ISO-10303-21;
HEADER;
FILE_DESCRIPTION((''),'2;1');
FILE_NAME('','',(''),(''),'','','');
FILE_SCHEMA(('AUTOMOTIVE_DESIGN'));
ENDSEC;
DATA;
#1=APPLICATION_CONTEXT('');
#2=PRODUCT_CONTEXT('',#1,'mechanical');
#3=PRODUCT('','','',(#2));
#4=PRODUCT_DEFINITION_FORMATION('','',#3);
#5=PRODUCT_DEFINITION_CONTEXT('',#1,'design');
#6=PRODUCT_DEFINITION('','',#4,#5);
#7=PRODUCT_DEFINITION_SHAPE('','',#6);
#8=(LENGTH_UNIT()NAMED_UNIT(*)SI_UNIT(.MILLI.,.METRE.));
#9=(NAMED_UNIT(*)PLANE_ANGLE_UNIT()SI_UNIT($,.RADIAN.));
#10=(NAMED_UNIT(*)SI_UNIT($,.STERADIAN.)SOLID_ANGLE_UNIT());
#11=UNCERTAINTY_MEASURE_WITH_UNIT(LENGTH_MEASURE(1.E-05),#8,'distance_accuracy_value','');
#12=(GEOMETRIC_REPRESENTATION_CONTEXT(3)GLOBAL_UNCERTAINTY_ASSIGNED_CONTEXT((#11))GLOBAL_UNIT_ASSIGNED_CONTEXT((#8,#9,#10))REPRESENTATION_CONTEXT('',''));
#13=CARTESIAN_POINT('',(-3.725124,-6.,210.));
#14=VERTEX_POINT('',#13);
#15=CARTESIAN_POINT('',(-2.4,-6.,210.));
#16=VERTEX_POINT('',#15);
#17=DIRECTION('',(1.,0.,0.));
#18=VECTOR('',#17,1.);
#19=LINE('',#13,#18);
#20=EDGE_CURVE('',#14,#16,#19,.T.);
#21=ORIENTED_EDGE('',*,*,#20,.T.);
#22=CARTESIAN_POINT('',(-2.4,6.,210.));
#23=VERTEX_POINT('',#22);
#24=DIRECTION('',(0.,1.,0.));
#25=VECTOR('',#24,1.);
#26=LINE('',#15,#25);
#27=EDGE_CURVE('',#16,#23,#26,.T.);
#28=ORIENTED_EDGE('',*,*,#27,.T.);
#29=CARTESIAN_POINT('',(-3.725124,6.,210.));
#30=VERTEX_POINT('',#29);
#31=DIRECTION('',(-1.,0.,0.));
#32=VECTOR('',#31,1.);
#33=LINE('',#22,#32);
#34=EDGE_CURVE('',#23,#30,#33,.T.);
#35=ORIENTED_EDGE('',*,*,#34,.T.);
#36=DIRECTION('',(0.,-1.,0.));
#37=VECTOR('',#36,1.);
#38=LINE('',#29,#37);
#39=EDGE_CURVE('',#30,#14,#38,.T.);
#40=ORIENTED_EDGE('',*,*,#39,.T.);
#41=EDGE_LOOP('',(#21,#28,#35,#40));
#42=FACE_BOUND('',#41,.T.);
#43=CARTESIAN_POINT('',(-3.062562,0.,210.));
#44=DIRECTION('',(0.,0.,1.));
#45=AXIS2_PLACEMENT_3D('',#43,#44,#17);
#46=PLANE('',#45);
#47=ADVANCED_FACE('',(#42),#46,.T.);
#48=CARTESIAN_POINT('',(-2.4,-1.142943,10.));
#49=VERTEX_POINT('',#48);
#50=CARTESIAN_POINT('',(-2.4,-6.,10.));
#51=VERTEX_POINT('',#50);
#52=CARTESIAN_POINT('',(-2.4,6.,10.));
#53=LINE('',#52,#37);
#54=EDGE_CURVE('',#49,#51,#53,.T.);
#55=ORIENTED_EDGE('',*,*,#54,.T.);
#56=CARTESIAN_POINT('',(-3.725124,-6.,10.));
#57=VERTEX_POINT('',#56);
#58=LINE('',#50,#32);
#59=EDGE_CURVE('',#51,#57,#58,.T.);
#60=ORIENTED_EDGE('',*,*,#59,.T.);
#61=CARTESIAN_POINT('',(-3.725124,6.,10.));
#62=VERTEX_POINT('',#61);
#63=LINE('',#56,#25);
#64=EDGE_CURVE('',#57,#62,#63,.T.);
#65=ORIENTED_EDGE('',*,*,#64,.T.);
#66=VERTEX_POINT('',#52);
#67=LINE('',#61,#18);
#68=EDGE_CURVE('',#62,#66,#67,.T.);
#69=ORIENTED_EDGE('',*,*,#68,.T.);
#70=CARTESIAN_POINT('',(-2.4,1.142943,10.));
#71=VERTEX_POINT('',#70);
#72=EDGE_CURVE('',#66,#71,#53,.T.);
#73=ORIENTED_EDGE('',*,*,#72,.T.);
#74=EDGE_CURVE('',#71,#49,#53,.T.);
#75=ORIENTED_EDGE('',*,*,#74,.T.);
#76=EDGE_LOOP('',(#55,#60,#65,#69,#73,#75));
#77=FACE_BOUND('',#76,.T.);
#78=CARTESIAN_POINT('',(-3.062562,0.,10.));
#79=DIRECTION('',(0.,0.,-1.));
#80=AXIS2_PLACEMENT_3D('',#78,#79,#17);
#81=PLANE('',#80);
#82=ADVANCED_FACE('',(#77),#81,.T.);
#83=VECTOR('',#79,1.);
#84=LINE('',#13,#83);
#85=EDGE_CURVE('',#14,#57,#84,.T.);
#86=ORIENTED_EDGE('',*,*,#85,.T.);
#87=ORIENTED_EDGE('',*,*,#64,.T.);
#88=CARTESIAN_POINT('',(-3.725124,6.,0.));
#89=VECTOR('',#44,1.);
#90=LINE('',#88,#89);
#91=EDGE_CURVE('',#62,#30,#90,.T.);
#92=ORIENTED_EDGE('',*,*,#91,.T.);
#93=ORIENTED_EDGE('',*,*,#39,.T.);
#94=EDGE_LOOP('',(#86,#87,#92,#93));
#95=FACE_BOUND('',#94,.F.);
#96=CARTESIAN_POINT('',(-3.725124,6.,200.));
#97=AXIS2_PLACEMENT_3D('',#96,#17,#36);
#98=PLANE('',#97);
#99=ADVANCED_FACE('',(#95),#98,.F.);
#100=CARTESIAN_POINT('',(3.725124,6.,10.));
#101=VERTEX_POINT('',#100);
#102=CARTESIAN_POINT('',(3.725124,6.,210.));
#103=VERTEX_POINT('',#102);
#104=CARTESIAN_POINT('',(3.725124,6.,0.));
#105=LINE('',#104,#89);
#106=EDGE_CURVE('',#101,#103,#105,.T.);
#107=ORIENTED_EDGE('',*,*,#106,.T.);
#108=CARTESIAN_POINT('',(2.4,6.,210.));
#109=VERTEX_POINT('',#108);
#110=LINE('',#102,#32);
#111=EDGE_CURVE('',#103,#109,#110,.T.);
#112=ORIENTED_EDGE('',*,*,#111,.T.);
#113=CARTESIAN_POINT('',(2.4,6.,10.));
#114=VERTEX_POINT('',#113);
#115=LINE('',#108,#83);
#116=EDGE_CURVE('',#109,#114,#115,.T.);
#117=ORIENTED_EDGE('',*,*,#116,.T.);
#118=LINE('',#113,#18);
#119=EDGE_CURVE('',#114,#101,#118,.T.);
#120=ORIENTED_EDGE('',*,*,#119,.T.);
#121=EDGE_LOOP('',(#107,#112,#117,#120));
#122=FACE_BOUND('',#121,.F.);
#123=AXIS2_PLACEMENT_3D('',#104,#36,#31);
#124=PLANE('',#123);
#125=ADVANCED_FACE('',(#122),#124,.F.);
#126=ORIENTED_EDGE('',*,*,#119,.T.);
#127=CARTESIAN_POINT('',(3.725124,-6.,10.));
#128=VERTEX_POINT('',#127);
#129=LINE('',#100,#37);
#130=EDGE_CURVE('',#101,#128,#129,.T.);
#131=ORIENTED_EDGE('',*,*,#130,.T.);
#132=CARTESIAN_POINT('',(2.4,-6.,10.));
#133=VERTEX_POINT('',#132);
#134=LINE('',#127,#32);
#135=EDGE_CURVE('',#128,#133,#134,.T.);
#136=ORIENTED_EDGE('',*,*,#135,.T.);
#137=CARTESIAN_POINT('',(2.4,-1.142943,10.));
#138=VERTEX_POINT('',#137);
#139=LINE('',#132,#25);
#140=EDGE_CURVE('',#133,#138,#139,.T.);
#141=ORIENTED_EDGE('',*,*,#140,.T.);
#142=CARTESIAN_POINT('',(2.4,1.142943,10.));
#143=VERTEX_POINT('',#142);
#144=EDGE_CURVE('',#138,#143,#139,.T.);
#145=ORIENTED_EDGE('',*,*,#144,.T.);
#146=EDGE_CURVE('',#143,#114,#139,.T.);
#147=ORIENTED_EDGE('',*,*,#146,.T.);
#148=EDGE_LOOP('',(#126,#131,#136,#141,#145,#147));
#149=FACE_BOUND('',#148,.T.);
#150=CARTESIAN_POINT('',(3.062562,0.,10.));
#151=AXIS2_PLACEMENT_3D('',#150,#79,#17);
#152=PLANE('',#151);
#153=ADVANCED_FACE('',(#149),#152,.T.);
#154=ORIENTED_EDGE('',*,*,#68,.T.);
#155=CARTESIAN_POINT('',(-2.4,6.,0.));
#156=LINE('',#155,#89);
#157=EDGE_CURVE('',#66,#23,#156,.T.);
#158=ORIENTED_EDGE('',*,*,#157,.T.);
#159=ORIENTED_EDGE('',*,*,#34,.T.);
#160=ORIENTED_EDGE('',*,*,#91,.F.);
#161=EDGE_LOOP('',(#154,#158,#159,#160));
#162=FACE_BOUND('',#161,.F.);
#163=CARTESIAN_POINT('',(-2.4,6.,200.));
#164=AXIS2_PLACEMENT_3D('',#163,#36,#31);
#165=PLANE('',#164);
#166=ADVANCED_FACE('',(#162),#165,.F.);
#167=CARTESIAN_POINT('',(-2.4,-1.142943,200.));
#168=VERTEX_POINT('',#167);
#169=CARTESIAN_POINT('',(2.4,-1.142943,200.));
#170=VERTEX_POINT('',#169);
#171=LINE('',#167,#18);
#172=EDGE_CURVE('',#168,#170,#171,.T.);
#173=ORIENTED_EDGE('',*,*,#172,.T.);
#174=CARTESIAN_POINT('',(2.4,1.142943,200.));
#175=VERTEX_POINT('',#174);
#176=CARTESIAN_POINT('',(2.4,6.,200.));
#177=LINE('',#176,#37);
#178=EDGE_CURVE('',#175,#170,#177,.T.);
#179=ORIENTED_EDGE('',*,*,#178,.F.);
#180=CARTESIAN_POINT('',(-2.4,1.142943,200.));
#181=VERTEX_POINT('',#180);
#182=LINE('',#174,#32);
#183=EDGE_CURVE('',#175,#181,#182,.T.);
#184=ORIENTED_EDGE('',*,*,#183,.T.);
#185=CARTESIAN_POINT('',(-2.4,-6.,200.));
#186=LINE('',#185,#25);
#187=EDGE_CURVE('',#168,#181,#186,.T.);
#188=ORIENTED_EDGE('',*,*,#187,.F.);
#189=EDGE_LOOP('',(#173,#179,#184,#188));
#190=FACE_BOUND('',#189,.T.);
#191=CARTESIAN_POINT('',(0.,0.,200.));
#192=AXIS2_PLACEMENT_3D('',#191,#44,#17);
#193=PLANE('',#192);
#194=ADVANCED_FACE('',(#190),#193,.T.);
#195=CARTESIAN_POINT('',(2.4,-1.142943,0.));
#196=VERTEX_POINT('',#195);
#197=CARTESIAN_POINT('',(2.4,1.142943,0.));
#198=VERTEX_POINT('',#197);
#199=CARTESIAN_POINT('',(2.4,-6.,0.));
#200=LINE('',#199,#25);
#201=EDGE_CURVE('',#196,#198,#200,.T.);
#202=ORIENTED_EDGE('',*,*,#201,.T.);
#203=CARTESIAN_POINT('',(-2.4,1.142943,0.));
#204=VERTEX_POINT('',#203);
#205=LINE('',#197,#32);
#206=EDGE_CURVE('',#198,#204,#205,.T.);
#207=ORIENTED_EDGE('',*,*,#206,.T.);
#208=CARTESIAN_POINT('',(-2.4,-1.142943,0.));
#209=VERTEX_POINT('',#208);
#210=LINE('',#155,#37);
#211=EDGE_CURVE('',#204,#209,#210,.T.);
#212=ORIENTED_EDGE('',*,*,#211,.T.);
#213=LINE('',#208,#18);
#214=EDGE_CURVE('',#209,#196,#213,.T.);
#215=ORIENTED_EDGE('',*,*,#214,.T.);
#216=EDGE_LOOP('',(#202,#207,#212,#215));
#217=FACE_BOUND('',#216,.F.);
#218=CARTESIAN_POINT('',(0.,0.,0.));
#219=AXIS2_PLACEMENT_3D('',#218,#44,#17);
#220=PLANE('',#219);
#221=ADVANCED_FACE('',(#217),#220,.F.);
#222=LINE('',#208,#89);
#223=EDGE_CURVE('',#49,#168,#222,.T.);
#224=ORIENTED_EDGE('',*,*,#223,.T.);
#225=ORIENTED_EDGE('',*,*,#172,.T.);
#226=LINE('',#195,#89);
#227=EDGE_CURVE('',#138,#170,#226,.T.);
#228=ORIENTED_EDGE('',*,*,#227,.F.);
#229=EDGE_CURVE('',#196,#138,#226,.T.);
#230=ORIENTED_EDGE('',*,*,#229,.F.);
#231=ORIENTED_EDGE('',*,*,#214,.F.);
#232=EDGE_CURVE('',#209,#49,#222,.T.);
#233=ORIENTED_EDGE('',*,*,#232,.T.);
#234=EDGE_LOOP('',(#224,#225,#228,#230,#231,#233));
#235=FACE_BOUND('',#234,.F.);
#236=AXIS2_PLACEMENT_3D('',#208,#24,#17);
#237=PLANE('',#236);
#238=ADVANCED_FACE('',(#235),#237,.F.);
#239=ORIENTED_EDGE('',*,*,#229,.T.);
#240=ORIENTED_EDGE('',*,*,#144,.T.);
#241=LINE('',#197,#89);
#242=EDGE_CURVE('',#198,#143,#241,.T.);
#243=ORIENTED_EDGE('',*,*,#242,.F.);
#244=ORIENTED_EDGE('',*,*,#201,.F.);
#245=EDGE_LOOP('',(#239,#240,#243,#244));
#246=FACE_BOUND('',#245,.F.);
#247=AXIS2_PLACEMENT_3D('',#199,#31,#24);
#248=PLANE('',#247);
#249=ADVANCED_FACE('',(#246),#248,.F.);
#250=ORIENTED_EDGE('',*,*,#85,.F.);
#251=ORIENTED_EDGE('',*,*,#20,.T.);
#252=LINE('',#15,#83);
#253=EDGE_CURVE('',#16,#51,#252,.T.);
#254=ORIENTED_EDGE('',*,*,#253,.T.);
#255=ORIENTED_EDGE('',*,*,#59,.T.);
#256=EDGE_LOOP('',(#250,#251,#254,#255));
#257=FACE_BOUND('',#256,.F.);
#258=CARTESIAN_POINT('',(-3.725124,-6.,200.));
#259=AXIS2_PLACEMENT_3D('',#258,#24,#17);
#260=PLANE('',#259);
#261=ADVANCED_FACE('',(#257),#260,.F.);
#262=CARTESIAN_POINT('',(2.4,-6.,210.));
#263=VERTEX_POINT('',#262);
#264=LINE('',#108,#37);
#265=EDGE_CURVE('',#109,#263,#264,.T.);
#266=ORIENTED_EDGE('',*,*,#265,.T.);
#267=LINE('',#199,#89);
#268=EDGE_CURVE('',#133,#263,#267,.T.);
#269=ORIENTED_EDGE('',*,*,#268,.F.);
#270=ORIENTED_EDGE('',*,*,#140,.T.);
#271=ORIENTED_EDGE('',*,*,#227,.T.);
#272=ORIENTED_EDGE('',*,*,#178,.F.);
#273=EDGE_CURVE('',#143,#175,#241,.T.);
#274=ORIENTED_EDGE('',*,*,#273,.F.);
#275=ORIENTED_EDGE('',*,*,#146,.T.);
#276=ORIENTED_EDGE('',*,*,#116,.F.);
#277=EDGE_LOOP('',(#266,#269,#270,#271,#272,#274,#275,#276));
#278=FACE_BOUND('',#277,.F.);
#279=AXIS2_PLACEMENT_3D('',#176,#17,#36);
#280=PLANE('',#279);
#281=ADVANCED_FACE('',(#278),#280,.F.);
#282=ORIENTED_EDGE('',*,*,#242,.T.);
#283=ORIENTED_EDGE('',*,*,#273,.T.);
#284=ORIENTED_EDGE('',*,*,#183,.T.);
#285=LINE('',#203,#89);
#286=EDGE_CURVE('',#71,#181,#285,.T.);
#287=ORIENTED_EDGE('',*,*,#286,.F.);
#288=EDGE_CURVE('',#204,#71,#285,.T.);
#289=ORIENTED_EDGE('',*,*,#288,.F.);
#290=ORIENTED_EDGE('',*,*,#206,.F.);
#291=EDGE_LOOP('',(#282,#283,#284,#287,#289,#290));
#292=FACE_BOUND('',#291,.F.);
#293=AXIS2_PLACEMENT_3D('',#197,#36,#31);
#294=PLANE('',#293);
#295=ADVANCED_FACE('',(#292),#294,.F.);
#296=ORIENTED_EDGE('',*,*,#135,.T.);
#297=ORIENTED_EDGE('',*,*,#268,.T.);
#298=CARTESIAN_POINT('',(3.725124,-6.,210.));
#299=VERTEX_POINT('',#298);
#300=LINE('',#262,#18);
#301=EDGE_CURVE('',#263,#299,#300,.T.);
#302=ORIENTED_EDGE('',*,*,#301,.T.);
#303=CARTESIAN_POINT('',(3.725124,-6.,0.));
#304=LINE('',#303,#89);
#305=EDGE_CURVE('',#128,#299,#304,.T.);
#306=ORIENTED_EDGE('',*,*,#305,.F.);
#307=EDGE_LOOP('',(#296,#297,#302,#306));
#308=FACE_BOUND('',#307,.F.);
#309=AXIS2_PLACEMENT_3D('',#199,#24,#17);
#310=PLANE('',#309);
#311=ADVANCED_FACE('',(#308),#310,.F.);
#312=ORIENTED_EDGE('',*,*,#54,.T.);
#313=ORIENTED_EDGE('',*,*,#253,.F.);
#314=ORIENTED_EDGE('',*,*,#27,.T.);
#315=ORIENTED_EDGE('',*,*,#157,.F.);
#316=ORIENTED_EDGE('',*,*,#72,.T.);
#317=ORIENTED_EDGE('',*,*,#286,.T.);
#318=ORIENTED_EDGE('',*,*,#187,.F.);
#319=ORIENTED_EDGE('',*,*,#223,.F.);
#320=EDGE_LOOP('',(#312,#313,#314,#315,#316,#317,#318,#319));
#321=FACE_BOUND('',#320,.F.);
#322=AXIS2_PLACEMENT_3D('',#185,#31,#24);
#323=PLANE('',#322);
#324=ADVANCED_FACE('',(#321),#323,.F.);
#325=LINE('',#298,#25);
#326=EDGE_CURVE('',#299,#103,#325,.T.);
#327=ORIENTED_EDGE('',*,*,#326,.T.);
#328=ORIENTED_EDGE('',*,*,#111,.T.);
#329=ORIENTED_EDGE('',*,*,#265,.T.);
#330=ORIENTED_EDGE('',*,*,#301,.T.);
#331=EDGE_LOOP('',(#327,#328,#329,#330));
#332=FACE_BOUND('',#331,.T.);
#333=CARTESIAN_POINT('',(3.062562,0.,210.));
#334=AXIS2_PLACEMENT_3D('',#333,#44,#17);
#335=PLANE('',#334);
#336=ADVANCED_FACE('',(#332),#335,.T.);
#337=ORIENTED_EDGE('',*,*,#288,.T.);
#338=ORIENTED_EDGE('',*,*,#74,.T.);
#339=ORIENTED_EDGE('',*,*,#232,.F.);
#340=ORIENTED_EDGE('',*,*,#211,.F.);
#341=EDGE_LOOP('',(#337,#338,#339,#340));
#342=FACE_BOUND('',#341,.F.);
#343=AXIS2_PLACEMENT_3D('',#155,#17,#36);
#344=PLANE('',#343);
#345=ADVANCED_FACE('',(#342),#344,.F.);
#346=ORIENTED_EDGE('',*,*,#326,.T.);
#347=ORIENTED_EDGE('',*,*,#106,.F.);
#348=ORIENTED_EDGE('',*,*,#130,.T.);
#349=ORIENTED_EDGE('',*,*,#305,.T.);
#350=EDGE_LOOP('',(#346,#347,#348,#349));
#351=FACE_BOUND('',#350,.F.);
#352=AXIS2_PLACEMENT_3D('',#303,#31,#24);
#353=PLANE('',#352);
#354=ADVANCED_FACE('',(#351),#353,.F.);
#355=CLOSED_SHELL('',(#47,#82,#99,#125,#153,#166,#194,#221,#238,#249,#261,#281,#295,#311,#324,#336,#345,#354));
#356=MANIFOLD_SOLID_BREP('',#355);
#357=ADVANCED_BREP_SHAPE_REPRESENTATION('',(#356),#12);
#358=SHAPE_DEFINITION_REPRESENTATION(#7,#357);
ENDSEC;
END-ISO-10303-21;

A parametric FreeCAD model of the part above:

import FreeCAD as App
import Part
import Sketcher

V = App.Vector
Q = App.Units.Quantity

doc = App.newDocument("Part")
body = doc.addObject("PartDesign::Body", "Body")

# Sketch on XY plane
sketch1 = body.newObject("Sketcher::SketchObject", "Sketch")
sketch1.AttachmentSupport = (doc.getObject("XY_Plane"), [""])
sketch1.MapMode = "FlatFace"
sketch1.addGeometry([
    Part.LineSegment(V(2.4, 1.142943, 0), V(-2.4, 1.142943, 0)),  # 0
    Part.LineSegment(V(-2.4, 1.142943, 0), V(-2.4, 6, 0)),  # 1
    Part.LineSegment(V(-2.4, 6, 0), V(-3.725124, 6, 0)),  # 2
    Part.LineSegment(V(-3.725124, 6, 0), V(-3.725124, -6, 0)),  # 3
    Part.LineSegment(V(-3.725124, -6, 0), V(-2.4, -6, 0)),  # 4
    Part.LineSegment(V(-2.4, -6, 0), V(-2.4, -1.142943, 0)),  # 5
    Part.LineSegment(V(-2.4, -1.142943, 0), V(2.4, -1.142943, 0)),  # 6
    Part.LineSegment(V(2.4, -1.142943, 0), V(2.4, -6, 0)),  # 7
    Part.LineSegment(V(2.4, -6, 0), V(3.725124, -6, 0)),  # 8
    Part.LineSegment(V(3.725124, -6, 0), V(3.725124, 6, 0)),  # 9
    Part.LineSegment(V(3.725124, 6, 0), V(2.4, 6, 0)),  # 10
    Part.LineSegment(V(2.4, 6, 0), V(2.4, 1.142943, 0)),  # 11
], False)
sketch1.addConstraint([
    Sketcher.Constraint("Coincident", 0, 2, 1, 1),
    Sketcher.Constraint("Coincident", 1, 2, 2, 1),
    Sketcher.Constraint("Coincident", 2, 2, 3, 1),
    Sketcher.Constraint("Coincident", 3, 2, 4, 1),
    Sketcher.Constraint("Coincident", 4, 2, 5, 1),
    Sketcher.Constraint("Coincident", 5, 2, 6, 1),
    Sketcher.Constraint("Coincident", 6, 2, 7, 1),
    Sketcher.Constraint("Coincident", 7, 2, 8, 1),
    Sketcher.Constraint("Coincident", 8, 2, 9, 1),
    Sketcher.Constraint("Coincident", 9, 2, 10, 1),
    Sketcher.Constraint("Coincident", 10, 2, 11, 1),
    Sketcher.Constraint("Coincident", 11, 2, 0, 1),
    Sketcher.Constraint("Horizontal", 0),
    Sketcher.Constraint("Vertical", 1),
    Sketcher.Constraint("Horizontal", 2),
    Sketcher.Constraint("Vertical", 3),
    Sketcher.Constraint("Horizontal", 4),
    Sketcher.Constraint("Vertical", 5),
    Sketcher.Constraint("Horizontal", 6),
    Sketcher.Constraint("Vertical", 7),
    Sketcher.Constraint("Horizontal", 8),
    Sketcher.Constraint("Vertical", 9),
    Sketcher.Constraint("Horizontal", 10),
    Sketcher.Constraint("Vertical", 11),
    Sketcher.Constraint("Symmetric", 0, 2, 6, 2, -1, 1),
    Sketcher.Constraint("Symmetric", 2, 2, 8, 2, -1, 1),
    Sketcher.Constraint("Symmetric", 4, 2, 10, 2, -1, 1),
    Sketcher.Constraint("Symmetric", 4, 2, 7, 2, -2),
    Sketcher.Constraint("DistanceY", 3, 2, 3, 1, Q("12 mm")),
    Sketcher.Constraint("DistanceX", 0, 2, 0, 1, Q("4.8 mm")),
    Sketcher.Constraint("DistanceX", 2, 2, 2, 1, Q("1.325124 mm")),
    Sketcher.Constraint("DistanceY", 1, 1, 1, 2, Q("4.857057 mm")),
])
pad1 = body.newObject("PartDesign::Pad", "Pad")
pad1.Profile = sketch1
pad1.Length = 200

# Sketch on XY plane
sketch2 = body.newObject("Sketcher::SketchObject", "Sketch001")
sketch2.AttachmentSupport = (doc.getObject("XY_Plane"), [""])
sketch2.MapMode = "FlatFace"
sketch2.AttachmentOffset = App.Placement(V(0, 0, 200), App.Rotation())
sketch2.addGeometry([
    Part.LineSegment(V(-2.4, -6, 0), V(-2.4, 6, 0)),  # 0
    Part.LineSegment(V(-2.4, 6, 0), V(-3.725124, 6, 0)),  # 1
    Part.LineSegment(V(-3.725124, 6, 0), V(-3.725124, -6, 0)),  # 2
    Part.LineSegment(V(-3.725124, -6, 0), V(-2.4, -6, 0)),  # 3
    Part.LineSegment(V(2.4, -6, 0), V(3.725124, -6, 0)),  # 4
    Part.LineSegment(V(3.725124, -6, 0), V(3.725124, 6, 0)),  # 5
    Part.LineSegment(V(3.725124, 6, 0), V(2.4, 6, 0)),  # 6
    Part.LineSegment(V(2.4, 6, 0), V(2.4, -6, 0)),  # 7
], False)
sketch2.addConstraint([
    Sketcher.Constraint("Coincident", 0, 2, 1, 1),
    Sketcher.Constraint("Coincident", 1, 2, 2, 1),
    Sketcher.Constraint("Coincident", 2, 2, 3, 1),
    Sketcher.Constraint("Coincident", 3, 2, 0, 1),
    Sketcher.Constraint("Coincident", 4, 2, 5, 1),
    Sketcher.Constraint("Coincident", 5, 2, 6, 1),
    Sketcher.Constraint("Coincident", 6, 2, 7, 1),
    Sketcher.Constraint("Coincident", 7, 2, 4, 1),
    Sketcher.Constraint("Vertical", 0),
    Sketcher.Constraint("Horizontal", 1),
    Sketcher.Constraint("Vertical", 2),
    Sketcher.Constraint("Horizontal", 3),
    Sketcher.Constraint("Horizontal", 4),
    Sketcher.Constraint("Vertical", 5),
    Sketcher.Constraint("Horizontal", 6),
    Sketcher.Constraint("Vertical", 7),
    Sketcher.Constraint("Symmetric", 1, 2, 4, 2, -1, 1),
    Sketcher.Constraint("Symmetric", 3, 2, 6, 2, -1, 1),
    Sketcher.Constraint("Horizontal", 3, 2, 4, 2),
    Sketcher.Constraint("DistanceY", 0, 1, 0, 2, Q("12 mm")),
    Sketcher.Constraint("DistanceX", 0, 2, -1, 1, Q("2.4 mm")),
    Sketcher.Constraint("DistanceX", 1, 2, 1, 1, Q("1.325124 mm")),
])
pad2 = body.newObject("PartDesign::Pad", "Pad001")
pad2.Profile = sketch2
pad2.Length = 10

# Sketch on XY plane
sketch3 = body.newObject("Sketcher::SketchObject", "Sketch002")
sketch3.AttachmentSupport = (doc.getObject("XY_Plane"), [""])
sketch3.MapMode = "FlatFace"
sketch3.addGeometry([
    Part.LineSegment(V(2.4, 6, 0), V(3.725124, 6, 0)),  # 0
    Part.LineSegment(V(3.725124, 6, 0), V(3.725124, -6, 0)),  # 1
    Part.LineSegment(V(3.725124, -6, 0), V(2.4, -6, 0)),  # 2
    Part.LineSegment(V(2.4, -6, 0), V(2.4, 6, 0)),  # 3
    Part.LineSegment(V(-2.4, 6, 0), V(-2.4, -6, 0)),  # 4
    Part.LineSegment(V(-2.4, -6, 0), V(-3.725124, -6, 0)),  # 5
    Part.LineSegment(V(-3.725124, -6, 0), V(-3.725124, 6, 0)),  # 6
    Part.LineSegment(V(-3.725124, 6, 0), V(-2.4, 6, 0)),  # 7
], False)
sketch3.addConstraint([
    Sketcher.Constraint("Coincident", 0, 2, 1, 1),
    Sketcher.Constraint("Coincident", 1, 2, 2, 1),
    Sketcher.Constraint("Coincident", 2, 2, 3, 1),
    Sketcher.Constraint("Coincident", 3, 2, 0, 1),
    Sketcher.Constraint("Coincident", 4, 2, 5, 1),
    Sketcher.Constraint("Coincident", 5, 2, 6, 1),
    Sketcher.Constraint("Coincident", 6, 2, 7, 1),
    Sketcher.Constraint("Coincident", 7, 2, 4, 1),
    Sketcher.Constraint("Horizontal", 0),
    Sketcher.Constraint("Vertical", 1),
    Sketcher.Constraint("Horizontal", 2),
    Sketcher.Constraint("Vertical", 3),
    Sketcher.Constraint("Vertical", 4),
    Sketcher.Constraint("Horizontal", 5),
    Sketcher.Constraint("Vertical", 6),
    Sketcher.Constraint("Horizontal", 7),
    Sketcher.Constraint("Symmetric", 3, 2, 4, 2, -1, 1),
    Sketcher.Constraint("Symmetric", 1, 2, 6, 2, -1, 1),
    Sketcher.Constraint("Horizontal", 2, 2, 4, 2),
    Sketcher.Constraint("DistanceY", 1, 2, 1, 1, Q("12 mm")),
    Sketcher.Constraint("DistanceX", -1, 1, 2, 2, Q("2.4 mm")),
    Sketcher.Constraint("DistanceX", 0, 1, 0, 2, Q("1.325124 mm")),
])
pocket1 = body.newObject("PartDesign::Pocket", "Pocket")
pocket1.Profile = sketch3
pocket1.Length = 10
pocket1.Reversed = True

doc.recompute()
